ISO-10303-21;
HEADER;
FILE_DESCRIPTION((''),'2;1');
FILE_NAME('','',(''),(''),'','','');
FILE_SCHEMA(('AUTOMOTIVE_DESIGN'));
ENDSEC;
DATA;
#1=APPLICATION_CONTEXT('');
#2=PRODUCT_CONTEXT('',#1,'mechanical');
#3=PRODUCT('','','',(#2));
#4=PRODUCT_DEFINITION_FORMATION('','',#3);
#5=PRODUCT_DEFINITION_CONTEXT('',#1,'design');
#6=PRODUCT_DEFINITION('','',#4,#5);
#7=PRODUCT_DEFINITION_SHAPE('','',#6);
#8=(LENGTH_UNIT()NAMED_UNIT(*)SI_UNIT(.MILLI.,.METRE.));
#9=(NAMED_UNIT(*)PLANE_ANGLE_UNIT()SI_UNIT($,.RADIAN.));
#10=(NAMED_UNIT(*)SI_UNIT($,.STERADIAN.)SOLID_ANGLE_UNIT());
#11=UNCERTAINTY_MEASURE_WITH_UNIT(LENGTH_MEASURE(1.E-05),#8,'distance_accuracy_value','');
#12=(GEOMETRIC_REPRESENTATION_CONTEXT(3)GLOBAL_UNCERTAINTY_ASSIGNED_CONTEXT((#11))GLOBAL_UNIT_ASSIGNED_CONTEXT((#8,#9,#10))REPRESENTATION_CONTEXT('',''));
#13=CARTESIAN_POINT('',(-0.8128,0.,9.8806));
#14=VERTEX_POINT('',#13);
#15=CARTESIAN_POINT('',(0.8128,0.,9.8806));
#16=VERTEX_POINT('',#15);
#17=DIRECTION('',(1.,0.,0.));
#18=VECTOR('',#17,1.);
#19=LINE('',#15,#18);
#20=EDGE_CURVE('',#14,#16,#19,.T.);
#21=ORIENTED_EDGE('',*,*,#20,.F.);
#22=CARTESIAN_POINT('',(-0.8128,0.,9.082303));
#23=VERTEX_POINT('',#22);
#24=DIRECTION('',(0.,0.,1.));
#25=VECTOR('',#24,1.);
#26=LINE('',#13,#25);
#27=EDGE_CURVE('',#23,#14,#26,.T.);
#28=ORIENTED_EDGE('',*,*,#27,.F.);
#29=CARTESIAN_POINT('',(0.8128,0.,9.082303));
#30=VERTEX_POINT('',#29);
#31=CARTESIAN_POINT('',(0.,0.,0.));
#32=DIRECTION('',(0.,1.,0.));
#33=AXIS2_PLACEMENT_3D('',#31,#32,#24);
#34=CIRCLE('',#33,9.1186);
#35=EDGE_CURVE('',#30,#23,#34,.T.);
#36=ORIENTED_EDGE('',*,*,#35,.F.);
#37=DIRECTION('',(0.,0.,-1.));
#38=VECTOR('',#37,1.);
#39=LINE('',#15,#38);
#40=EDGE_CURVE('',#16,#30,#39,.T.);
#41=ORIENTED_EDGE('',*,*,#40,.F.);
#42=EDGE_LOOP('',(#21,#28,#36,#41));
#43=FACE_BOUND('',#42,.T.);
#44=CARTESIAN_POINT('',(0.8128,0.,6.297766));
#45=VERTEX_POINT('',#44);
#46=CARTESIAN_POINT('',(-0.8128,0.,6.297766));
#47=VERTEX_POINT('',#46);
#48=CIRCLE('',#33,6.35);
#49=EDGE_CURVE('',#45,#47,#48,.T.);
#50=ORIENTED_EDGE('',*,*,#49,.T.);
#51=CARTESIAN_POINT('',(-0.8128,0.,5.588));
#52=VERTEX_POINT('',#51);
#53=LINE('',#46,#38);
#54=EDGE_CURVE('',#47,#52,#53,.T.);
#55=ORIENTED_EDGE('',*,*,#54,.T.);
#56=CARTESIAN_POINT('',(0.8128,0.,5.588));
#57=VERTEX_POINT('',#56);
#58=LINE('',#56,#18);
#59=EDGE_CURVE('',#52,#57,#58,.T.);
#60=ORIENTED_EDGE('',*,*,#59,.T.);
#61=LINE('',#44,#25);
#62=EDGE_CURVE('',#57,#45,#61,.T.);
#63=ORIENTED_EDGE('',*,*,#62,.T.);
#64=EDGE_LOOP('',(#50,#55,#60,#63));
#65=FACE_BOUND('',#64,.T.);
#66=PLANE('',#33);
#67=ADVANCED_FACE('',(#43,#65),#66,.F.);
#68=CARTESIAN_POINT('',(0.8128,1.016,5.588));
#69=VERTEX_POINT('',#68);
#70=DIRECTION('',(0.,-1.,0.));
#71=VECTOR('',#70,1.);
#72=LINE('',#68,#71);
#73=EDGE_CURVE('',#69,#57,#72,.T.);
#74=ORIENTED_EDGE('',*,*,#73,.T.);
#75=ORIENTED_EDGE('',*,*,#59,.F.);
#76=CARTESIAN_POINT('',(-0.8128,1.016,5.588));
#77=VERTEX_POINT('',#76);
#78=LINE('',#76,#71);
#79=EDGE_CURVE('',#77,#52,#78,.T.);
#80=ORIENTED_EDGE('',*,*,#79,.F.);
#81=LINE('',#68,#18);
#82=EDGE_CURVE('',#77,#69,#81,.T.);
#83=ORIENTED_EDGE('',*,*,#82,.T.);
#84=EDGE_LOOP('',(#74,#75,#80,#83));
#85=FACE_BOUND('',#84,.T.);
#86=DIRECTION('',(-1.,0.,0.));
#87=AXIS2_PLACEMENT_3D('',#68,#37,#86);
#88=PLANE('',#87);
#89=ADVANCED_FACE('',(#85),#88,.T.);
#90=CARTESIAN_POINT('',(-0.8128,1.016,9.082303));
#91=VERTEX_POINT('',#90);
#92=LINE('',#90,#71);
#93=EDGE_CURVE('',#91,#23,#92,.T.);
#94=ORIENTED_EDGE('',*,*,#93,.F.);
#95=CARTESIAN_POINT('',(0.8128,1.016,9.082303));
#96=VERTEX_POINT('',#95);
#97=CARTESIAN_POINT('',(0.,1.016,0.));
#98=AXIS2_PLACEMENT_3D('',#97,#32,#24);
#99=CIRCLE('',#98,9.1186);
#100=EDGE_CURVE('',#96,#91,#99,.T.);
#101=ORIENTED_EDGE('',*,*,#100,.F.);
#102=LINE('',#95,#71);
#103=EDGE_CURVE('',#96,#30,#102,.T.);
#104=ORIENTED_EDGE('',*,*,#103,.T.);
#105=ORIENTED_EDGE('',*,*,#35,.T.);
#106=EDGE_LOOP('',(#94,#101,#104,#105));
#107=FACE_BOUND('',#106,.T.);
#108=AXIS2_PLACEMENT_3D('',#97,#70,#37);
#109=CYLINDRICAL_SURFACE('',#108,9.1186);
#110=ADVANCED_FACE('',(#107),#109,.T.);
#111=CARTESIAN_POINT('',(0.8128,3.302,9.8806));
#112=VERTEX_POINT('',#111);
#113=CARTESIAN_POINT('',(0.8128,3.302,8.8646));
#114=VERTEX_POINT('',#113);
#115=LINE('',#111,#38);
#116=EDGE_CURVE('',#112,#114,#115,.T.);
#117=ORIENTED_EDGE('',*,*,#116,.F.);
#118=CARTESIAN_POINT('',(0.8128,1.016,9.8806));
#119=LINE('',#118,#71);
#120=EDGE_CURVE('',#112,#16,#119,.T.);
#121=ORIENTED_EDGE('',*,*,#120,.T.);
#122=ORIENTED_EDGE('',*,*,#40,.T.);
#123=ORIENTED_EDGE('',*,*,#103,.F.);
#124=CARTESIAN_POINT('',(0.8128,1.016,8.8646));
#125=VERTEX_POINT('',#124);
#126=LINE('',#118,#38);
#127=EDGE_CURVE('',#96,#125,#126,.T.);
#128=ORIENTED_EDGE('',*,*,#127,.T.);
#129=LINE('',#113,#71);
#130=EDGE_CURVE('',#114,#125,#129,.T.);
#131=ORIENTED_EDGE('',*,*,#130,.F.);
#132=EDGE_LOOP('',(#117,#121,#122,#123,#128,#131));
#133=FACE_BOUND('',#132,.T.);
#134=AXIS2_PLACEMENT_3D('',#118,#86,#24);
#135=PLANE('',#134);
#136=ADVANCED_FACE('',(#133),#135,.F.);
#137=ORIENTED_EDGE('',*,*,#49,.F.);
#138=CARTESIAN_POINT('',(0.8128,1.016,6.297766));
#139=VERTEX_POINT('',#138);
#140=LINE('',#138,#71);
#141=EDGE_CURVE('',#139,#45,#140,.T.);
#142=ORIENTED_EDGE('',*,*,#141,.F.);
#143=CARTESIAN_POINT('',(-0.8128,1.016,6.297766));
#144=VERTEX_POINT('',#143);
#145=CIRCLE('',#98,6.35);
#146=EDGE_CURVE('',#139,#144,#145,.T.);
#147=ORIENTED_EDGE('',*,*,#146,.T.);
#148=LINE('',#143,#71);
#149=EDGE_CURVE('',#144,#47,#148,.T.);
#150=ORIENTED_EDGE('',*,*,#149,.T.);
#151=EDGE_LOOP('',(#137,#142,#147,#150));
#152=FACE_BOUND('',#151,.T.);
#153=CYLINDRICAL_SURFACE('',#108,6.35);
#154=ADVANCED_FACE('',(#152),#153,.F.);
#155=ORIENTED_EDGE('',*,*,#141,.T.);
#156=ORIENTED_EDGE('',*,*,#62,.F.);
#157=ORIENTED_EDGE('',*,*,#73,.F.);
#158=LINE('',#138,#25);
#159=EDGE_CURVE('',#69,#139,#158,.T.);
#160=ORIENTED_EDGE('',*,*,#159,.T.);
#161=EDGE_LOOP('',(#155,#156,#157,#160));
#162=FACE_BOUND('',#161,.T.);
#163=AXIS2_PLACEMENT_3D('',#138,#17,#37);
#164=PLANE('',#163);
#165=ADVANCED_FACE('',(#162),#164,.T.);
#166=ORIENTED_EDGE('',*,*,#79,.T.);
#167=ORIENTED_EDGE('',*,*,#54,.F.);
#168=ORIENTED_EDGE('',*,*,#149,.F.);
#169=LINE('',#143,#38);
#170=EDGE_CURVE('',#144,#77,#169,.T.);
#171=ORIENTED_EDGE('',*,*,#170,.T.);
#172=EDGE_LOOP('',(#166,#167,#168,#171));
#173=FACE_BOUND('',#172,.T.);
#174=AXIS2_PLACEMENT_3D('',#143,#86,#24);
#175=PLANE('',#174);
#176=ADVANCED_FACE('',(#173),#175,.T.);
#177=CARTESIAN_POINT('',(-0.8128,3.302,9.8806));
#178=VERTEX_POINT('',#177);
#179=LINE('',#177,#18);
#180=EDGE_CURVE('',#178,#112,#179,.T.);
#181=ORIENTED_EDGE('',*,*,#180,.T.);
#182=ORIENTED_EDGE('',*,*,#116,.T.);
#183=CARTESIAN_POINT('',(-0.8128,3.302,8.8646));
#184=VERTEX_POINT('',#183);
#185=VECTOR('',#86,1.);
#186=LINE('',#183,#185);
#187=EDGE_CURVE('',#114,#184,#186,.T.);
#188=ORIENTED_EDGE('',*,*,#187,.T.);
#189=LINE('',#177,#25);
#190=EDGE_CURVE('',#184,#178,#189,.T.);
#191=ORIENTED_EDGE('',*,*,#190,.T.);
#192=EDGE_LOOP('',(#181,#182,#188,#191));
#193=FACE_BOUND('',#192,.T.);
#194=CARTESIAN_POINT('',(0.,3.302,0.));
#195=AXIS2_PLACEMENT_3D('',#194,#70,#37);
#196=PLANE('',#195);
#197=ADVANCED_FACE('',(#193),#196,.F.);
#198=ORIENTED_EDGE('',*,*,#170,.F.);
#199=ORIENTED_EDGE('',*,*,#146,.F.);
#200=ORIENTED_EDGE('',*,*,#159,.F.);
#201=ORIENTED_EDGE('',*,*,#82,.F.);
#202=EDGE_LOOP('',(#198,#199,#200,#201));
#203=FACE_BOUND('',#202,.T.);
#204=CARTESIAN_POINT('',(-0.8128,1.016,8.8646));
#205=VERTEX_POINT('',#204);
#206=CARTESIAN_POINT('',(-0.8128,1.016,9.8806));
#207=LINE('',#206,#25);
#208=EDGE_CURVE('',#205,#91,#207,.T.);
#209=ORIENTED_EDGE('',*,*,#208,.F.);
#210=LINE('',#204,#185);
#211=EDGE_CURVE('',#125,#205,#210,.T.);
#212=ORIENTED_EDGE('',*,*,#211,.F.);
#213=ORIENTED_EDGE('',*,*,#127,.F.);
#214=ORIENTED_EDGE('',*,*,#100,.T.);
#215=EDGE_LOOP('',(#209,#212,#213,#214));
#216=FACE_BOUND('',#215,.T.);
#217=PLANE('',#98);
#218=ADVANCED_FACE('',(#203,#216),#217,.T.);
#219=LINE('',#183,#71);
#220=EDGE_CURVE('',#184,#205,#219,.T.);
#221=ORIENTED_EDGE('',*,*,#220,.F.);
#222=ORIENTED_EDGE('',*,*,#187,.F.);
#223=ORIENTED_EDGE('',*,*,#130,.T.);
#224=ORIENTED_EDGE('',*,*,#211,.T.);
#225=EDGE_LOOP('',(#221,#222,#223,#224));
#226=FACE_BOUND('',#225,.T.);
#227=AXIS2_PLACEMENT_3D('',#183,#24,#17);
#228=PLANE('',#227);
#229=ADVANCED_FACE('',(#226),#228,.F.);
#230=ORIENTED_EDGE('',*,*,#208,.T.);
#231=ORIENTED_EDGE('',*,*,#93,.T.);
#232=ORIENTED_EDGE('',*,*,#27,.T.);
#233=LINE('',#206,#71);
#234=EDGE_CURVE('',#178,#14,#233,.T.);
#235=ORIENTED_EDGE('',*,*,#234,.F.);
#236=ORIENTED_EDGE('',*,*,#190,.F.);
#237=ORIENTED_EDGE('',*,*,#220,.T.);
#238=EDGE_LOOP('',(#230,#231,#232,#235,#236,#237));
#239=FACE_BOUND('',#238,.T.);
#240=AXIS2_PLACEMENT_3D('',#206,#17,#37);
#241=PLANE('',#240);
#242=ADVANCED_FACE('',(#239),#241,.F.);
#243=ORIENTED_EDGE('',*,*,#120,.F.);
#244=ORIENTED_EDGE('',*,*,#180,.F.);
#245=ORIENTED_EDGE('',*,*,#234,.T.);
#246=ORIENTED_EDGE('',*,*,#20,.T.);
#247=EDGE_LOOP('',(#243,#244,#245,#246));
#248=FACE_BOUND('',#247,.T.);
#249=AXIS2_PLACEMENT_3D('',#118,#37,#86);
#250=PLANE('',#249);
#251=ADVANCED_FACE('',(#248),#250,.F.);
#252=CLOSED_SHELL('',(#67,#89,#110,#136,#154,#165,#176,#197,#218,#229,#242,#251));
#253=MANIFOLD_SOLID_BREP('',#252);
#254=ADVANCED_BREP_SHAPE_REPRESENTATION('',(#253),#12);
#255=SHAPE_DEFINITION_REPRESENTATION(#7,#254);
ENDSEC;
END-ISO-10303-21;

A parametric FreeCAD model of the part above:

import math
import FreeCAD as App
import Part
import Sketcher

V = App.Vector
Q = App.Units.Quantity

doc = App.newDocument("Part")
body = doc.addObject("PartDesign::Body", "Body")

# Sketch on XZ plane
sketch1 = body.newObject("Sketcher::SketchObject", "Sketch")
sketch1.AttachmentSupport = (doc.getObject("XZ_Plane"), [""])
sketch1.MapMode = "FlatFace"
sketch1.addGeometry([
    Part.LineSegment(V(-0.8, 9.9, 0), V(0.8, 9.9, 0)),  # 0
    Part.LineSegment(V(0.8, 9.9, 0), V(0.8, 9.1, 0)),  # 1
    Part.ArcOfCircle(Part.Circle(V(0, 0, 0), V(0, 0, 1), 9.1), math.radians(95), math.radians(445)),  # 2
    Part.LineSegment(V(-0.8, 9.1, 0), V(-0.8, 9.9, 0)),  # 3
    Part.LineSegment(V(0.8, 6.3, 0), V(0.8, 5.6, 0)),  # 4
    Part.LineSegment(V(0.8, 5.6, 0), V(-0.8, 5.6, 0)),  # 5
    Part.LineSegment(V(-0.8, 5.6, 0), V(-0.8, 6.3, 0)),  # 6
    Part.ArcOfCircle(Part.Circle(V(0, 0, 0), V(0, 0, 1), 6.3), math.radians(97), math.radians(443)),  # 7
], False)
sketch1.addConstraint([
    Sketcher.Constraint("Coincident", 0, 2, 1, 1),
    Sketcher.Constraint("Coincident", 1, 2, 2, 2),
    Sketcher.Constraint("Coincident", 2, 1, 3, 1),
    Sketcher.Constraint("Coincident", 3, 2, 0, 1),
    Sketcher.Constraint("Coincident", 4, 2, 5, 1),
    Sketcher.Constraint("Coincident", 5, 2, 6, 1),
    Sketcher.Constraint("Coincident", 6, 2, 7, 1),
    Sketcher.Constraint("Coincident", 7, 2, 4, 1),
    Sketcher.Constraint("Horizontal", 0),
    Sketcher.Constraint("Vertical", 1),
    Sketcher.Constraint("Vertical", 3),
    Sketcher.Constraint("Vertical", 4),
    Sketcher.Constraint("Horizontal", 5),
    Sketcher.Constraint("Vertical", 6),
    Sketcher.Constraint("Coincident", 2, 3, -1, 1),
    Sketcher.Constraint("Coincident", 7, 3, -1, 1),
    Sketcher.Constraint("Horizontal", 1, 2, 2, 1),
    Sketcher.Constraint("Horizontal", 6, 2, 7, 2),
    Sketcher.Constraint("Vertical", 1, 2, 4, 2),
    Sketcher.Constraint("Radius", 7, Q("0.25 in")),
    Sketcher.Constraint("Radius", 2, Q("0.359 in")),
    Sketcher.Constraint("DistanceX", 0, 1, 0, 2, Q("0.064 in")),
    Sketcher.Constraint("DistanceY", -1, 1, 4, 2, Q("0.22 in")),
    Sketcher.Constraint("DistanceY", -1, 1, 0, 2, Q("0.389 in")),
])
pad1 = body.newObject("PartDesign::Pad", "Pad")
pad1.Profile = sketch1
pad1.Length = Q("0.04 in")
pad1.Reversed = True

# Sketch on XZ plane
sketch2 = body.newObject("Sketcher::SketchObject", "Sketch001")
sketch2.AttachmentSupport = (doc.getObject("XZ_Plane"), [""])
sketch2.MapMode = "FlatFace"
sketch2.AttachmentOffset = App.Placement(V(0, 0, -0.04 * 25.4), App.Rotation())
sketch2.addGeometry([
    Part.LineSegment(V(-0.8, 8.9, 0), V(-0.8, 9.9, 0)),
    Part.LineSegment(V(-0.8, 9.9, 0), V(0.8, 9.9, 0)),
    Part.LineSegment(V(0.8, 9.9, 0), V(0.8, 8.9, 0)),
    Part.LineSegment(V(0.8, 8.9, 0), V(-0.8, 8.9, 0)),
], False)
sketch2.addConstraint([
    Sketcher.Constraint("Coincident", 0, 2, 1, 1),
    Sketcher.Constraint("Coincident", 1, 2, 2, 1),
    Sketcher.Constraint("Coincident", 2, 2, 3, 1),
    Sketcher.Constraint("Coincident", 3, 2, 0, 1),
    Sketcher.Constraint("Vertical", 0),
    Sketcher.Constraint("Horizontal", 1),
    Sketcher.Constraint("Vertical", 2),
    Sketcher.Constraint("Horizontal", 3),
    Sketcher.Constraint("DistanceY", 0, 1, 0, 2, Q("0.04 in")),
    Sketcher.Constraint("DistanceX", 1, 1, 1, 2, Q("0.064 in")),
    Sketcher.Constraint("DistanceX", 0, 2, -1, 1, Q("0.032 in")),
    Sketcher.Constraint("DistanceY", -1, 1, 0, 2, Q("0.389 in")),
])
pad2 = body.newObject("PartDesign::Pad", "Pad001")
pad2.Profile = sketch2
pad2.Length = Q("0.09 in")
pad2.Reversed = True

doc.recompute()
